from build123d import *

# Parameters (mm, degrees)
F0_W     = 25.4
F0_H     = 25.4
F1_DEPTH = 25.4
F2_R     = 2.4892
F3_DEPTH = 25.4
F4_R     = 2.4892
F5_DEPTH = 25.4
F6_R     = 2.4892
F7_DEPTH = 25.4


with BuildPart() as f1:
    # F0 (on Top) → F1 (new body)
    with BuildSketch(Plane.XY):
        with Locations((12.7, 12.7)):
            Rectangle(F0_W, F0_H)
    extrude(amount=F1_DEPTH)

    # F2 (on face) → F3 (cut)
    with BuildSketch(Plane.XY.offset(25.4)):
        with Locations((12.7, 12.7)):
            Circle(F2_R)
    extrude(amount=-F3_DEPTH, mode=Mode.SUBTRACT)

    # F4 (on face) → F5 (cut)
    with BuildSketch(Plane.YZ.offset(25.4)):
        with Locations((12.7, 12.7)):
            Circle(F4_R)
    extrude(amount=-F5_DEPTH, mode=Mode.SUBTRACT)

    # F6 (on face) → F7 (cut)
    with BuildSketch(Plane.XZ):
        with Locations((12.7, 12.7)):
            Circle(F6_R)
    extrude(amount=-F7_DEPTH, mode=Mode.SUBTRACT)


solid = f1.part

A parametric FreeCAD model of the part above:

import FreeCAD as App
import Part
import Sketcher

V = App.Vector
Q = App.Units.Quantity

doc = App.newDocument("Part")
body = doc.addObject("PartDesign::Body", "Body")

sketch1 = body.newObject("Sketcher::SketchObject", "Sketch")
sketch1.AttachmentSupport = (doc.getObject("XY_Plane"), [""])
sketch1.MapMode = "FlatFace"
sketch1.addGeometry(Part.LineSegment(V(0, 25, 0), V(0, 0, 0)), False)
sketch1.addGeometry(Part.LineSegment(V(0, 0, 0), V(25, 0, 0)), False)
sketch1.addGeometry(Part.LineSegment(V(25, 0, 0), V(25, 25, 0)), False)
sketch1.addGeometry(Part.LineSegment(V(25, 25, 0), V(0, 25, 0)), False)
sketch1.addConstraint(Sketcher.Constraint("Coincident", 0, 2, 1, 1))
sketch1.addConstraint(Sketcher.Constraint("Coincident", 1, 2, 2, 1))
sketch1.addConstraint(Sketcher.Constraint("Coincident", 2, 2, 3, 1))
sketch1.addConstraint(Sketcher.Constraint("Coincident", 3, 2, 0, 1))
sketch1.addConstraint(Sketcher.Constraint("Vertical", 0))
sketch1.addConstraint(Sketcher.Constraint("Horizontal", 1))
sketch1.addConstraint(Sketcher.Constraint("Vertical", 2))
sketch1.addConstraint(Sketcher.Constraint("Horizontal", 3))
sketch1.addConstraint(Sketcher.Constraint("Coincident", 0, 2, -1, 1))
sketch1.addConstraint(Sketcher.Constraint("Equal", 3, 0))
sketch1.addConstraint(Sketcher.Constraint("DistanceX", 1, 1, 1, 2, Q("1 in")))
pad1 = body.newObject("PartDesign::Pad", "Pad")
pad1.Profile = sketch1
pad1.Length = Q("1 in")

sketch2 = body.newObject("Sketcher::SketchObject", "Sketch001")
sketch2.AttachmentSupport = (doc.getObject("XY_Plane"), [""])
sketch2.MapMode = "FlatFace"
sketch2.AttachmentOffset = App.Placement(V(0, 0, 1 * 25.4), App.Rotation())
sketch2.addGeometry(Part.Circle(V(12.7, 12.7, 0), V(0, 0, 1), 2.5), False)
sketch2.addConstraint(Sketcher.Constraint("Diameter", 0, Q("0.196 in")))
sketch2.addConstraint(Sketcher.Constraint("DistanceX", -1, 1, 0, 3, Q("0.5 in")))
sketch2.addConstraint(Sketcher.Constraint("DistanceY", -1, 1, 0, 3, Q("0.5 in")))
pocket1 = body.newObject("PartDesign::Pocket", "Pocket")
pocket1.Profile = sketch2
pocket1.Length = Q("1 in")

sketch3 = body.newObject("Sketcher::SketchObject", "Sketch002")
sketch3.AttachmentSupport = (doc.getObject("YZ_Plane"), [""])
sketch3.MapMode = "FlatFace"
sketch3.AttachmentOffset = App.Placement(V(0, 0, 1 * 25.4), App.Rotation())
sketch3.addGeometry(Part.Circle(V(12.7, 12.7, 0), V(0, 0, 1), 2.5), False)
sketch3.addConstraint(Sketcher.Constraint("Diameter", 0, Q("0.196 in")))
sketch3.addConstraint(Sketcher.Constraint("DistanceX", -1, 1, 0, 3, Q("0.5 in")))
sketch3.addConstraint(Sketcher.Constraint("DistanceY", -1, 1, 0, 3, Q("0.5 in")))
pocket2 = body.newObject("PartDesign::Pocket", "Pocket001")
pocket2.Profile = sketch3
pocket2.Length = Q("1 in")

sketch4 = body.newObject("Sketcher::SketchObject", "Sketch003")
sketch4.AttachmentSupport = (doc.getObject("XZ_Plane"), [""])
sketch4.MapMode = "FlatFace"
sketch4.addGeometry(Part.Circle(V(12.7, 12.7, 0), V(0, 0, 1), 2.5), False)
sketch4.addConstraint(Sketcher.Constraint("Diameter", 0, Q("0.196 in")))
sketch4.addConstraint(Sketcher.Constraint("DistanceX", -1, 1, 0, 3, Q("0.5 in")))
sketch4.addConstraint(Sketcher.Constraint("DistanceY", -1, 1, 0, 3, Q("0.5 in")))
pocket3 = body.newObject("PartDesign::Pocket", "Pocket002")
pocket3.Profile = sketch4
pocket3.Length = Q("1 in")

doc.recompute()
